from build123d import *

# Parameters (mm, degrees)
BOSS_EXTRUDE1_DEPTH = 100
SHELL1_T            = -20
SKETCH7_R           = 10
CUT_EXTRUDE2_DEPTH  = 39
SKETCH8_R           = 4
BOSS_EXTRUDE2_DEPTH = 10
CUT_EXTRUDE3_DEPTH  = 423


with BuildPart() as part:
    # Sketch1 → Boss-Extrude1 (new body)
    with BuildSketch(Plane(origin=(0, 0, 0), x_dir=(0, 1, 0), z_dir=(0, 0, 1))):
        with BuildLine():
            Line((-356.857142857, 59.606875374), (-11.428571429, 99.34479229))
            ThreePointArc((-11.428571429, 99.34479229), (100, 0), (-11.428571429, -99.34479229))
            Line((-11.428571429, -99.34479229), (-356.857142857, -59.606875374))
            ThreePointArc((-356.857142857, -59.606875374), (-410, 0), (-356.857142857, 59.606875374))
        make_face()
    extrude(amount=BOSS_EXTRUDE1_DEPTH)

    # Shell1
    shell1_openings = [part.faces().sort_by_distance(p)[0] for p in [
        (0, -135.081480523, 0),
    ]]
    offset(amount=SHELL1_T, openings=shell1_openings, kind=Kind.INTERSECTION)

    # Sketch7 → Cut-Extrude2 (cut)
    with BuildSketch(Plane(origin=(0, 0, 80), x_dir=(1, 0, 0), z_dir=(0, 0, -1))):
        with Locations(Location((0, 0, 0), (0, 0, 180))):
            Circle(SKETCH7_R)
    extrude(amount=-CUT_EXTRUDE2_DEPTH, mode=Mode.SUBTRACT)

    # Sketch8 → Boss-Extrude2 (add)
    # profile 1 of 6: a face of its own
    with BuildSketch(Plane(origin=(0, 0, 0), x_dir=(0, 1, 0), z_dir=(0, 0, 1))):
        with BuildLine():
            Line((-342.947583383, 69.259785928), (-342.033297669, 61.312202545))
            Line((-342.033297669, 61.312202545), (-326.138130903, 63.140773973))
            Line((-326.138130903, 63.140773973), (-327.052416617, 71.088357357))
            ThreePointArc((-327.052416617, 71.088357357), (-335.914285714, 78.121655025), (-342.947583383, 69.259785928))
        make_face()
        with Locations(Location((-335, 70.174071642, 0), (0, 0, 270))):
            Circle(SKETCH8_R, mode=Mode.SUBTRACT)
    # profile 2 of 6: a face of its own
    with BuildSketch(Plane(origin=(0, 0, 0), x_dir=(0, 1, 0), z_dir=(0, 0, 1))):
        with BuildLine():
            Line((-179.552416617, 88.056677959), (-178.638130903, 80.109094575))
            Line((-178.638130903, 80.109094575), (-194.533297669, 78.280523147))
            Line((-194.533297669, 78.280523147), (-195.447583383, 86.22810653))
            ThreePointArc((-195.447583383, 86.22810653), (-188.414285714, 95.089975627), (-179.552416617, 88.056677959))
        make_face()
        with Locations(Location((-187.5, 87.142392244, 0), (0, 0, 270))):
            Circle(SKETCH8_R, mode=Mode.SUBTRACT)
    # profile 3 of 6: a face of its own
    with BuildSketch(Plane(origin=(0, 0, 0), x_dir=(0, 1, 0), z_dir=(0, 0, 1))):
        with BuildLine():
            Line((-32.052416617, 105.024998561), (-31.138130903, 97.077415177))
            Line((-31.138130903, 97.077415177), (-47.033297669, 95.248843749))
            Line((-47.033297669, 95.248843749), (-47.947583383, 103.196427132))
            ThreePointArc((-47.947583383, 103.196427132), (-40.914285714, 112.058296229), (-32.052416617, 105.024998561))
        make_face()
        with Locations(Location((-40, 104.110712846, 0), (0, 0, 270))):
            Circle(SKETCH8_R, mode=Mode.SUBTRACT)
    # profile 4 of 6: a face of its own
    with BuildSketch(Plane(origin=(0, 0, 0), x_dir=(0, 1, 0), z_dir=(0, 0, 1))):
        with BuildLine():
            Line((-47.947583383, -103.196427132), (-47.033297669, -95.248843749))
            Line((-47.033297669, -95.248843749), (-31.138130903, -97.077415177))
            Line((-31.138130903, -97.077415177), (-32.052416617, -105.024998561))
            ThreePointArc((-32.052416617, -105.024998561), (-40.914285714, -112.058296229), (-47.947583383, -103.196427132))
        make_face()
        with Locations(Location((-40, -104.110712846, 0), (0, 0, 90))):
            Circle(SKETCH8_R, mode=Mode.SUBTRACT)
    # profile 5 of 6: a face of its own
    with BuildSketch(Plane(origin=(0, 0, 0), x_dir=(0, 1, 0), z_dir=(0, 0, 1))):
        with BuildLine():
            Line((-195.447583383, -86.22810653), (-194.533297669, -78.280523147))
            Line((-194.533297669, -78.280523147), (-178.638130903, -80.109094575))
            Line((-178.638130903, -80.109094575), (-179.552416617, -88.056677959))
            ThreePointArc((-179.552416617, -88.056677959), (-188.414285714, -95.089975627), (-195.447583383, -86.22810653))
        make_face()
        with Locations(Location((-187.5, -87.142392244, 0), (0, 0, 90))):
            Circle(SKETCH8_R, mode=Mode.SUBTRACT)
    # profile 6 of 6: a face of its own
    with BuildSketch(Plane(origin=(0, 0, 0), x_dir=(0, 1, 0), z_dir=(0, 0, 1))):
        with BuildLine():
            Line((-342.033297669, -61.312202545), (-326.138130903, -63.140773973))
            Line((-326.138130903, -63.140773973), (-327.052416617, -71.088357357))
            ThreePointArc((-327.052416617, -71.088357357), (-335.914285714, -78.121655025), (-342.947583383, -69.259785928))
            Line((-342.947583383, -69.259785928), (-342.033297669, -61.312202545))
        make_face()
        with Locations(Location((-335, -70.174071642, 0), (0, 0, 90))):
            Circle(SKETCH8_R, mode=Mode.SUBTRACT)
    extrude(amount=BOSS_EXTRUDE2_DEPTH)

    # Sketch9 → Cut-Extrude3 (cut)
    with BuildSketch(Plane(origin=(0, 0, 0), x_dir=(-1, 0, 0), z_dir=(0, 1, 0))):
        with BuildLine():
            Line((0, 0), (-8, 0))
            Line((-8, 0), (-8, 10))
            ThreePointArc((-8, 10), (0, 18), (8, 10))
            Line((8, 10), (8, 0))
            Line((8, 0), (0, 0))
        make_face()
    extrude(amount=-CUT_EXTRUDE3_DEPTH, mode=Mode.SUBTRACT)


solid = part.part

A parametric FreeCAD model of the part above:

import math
import FreeCAD as App
import Part
import Sketcher

V = App.Vector


def faces_at(feature, points):
    """Names of the faces that lie closest to the given points."""
    faces = feature.Shape.Faces
    near = lambda p: min(range(len(faces)), key=lambda i: faces[i].distToShape(Part.Vertex(*p))[0])
    return sorted({f"Face{near(p) + 1}" for p in points})

doc = App.newDocument("Part")
body = doc.addObject("PartDesign::Body", "Body")

sketch1 = body.newObject("Sketcher::SketchObject", "Sketch")
sketch1.AttachmentSupport = (doc.getObject("XY_Plane"), [""])
sketch1.MapMode = "FlatFace"
sketch1.addGeometry(Part.LineSegment(V(-99, -11, 0), V(-60, -357, 0)), False)
sketch1.addGeometry(Part.ArcOfCircle(Part.Circle(V(0, -350, 0), V(0, 0, 1), 60), math.radians(-173), math.radians(-7)), False)
sketch1.addGeometry(Part.LineSegment(V(60, -357, 0), V(99, -11, 0)), False)
sketch1.addGeometry(Part.ArcOfCircle(Part.Circle(V(0, 0, 0), V(0, 0, 1), 100), math.radians(-7), math.radians(187)), False)
sketch1.addConstraint(Sketcher.Constraint("Tangent", 0, 2, 1, 1))
sketch1.addConstraint(Sketcher.Constraint("Tangent", 1, 2, 2, 1))
sketch1.addConstraint(Sketcher.Constraint("Tangent", 2, 2, 3, 1))
sketch1.addConstraint(Sketcher.Constraint("Tangent", 3, 2, 0, 1))
sketch1.addConstraint(Sketcher.Constraint("Coincident", 3, 3, -1, 1))
sketch1.addConstraint(Sketcher.Constraint("PointOnObject", 1, 3, -2))
sketch1.addConstraint(Sketcher.Constraint("Radius", 1, 60.0))
sketch1.addConstraint(Sketcher.Constraint("Radius", 3, 100.0))
sketch1.addConstraint(Sketcher.Constraint("DistanceY", 1, 3, -1, 1, 350.0))
pad1 = body.newObject("PartDesign::Pad", "Pad")
pad1.Profile = sketch1
pad1.Length = 100
doc.recompute()

thickness = body.newObject("PartDesign::Thickness", "Thickness")
thickness.Base = (pad1, faces_at(pad1, [(0, -155, 0)]))
thickness.Value = 20
thickness.Reversed = True
thickness.Join = "Intersection"

sketch2 = body.newObject("Sketcher::SketchObject", "Sketch001")
sketch2.AttachmentSupport = (doc.getObject("XY_Plane"), [""])
sketch2.MapMode = "FlatFace"
sketch2.AttachmentOffset = App.Placement(V(0, 0, 80), App.Rotation())
sketch2.addGeometry(Part.Circle(V(0, 0, 0), V(0, 0, 1), 10), False)
sketch2.addConstraint(Sketcher.Constraint("Coincident", 0, 3, -1, 1))
sketch2.addConstraint(Sketcher.Constraint("Diameter", 0, 20.0))
pocket1 = body.newObject("PartDesign::Pocket", "Pocket")
pocket1.Profile = sketch2
pocket1.Length = 39
pocket1.Reversed = True

sketch3 = body.newObject("Sketcher::SketchObject", "Sketch002")
sketch3.AttachmentSupport = (doc.getObject("XY_Plane"), [""])
sketch3.MapMode = "FlatFace"
sketch3.addGeometry(Part.LineSegment(V(-69.3, -342.9, 0), V(-61.3, -342, 0)), False)
sketch3.addGeometry(Part.LineSegment(V(-61.3, -342, 0), V(-63.1, -326.1, 0)), False)
sketch3.addGeometry(Part.LineSegment(V(-63.1, -326.1, 0), V(-71.1, -327.1, 0)), False)
sketch3.addGeometry(Part.ArcOfCircle(Part.Circle(V(-70.2, -335, 0), V(0, 0, 1), 8), math.radians(97), math.radians(277)), False)
sketch3.addGeometry(Part.Circle(V(-70.2, -335, 0), V(0, 0, 1), 4), False)
sketch3.addGeometry(Part.LineSegment(V(-80.1, -178.6, 0), V(-88.1, -179.6, 0)), False)
sketch3.addGeometry(Part.ArcOfCircle(Part.Circle(V(-87.1, -187.5, 0), V(0, 0, 1), 8), math.radians(97), math.radians(277)), False)
sketch3.addGeometry(Part.LineSegment(V(-86.2, -195.4, 0), V(-78.3, -194.5, 0)), False)
sketch3.addGeometry(Part.LineSegment(V(-78.3, -194.5, 0), V(-80.1, -178.6, 0)), False)
sketch3.addGeometry(Part.Circle(V(-87.1, -187.5, 0), V(0, 0, 1), 4), False)
sketch3.addGeometry(Part.LineSegment(V(-97.1, -31.1, 0), V(-105, -32.1, 0)), False)
sketch3.addGeometry(Part.ArcOfCircle(Part.Circle(V(-104.1, -40, 0), V(0, 0, 1), 8), math.radians(97), math.radians(277)), False)
sketch3.addGeometry(Part.LineSegment(V(-103.2, -47.9, 0), V(-95.2, -47, 0)), False)
sketch3.addGeometry(Part.LineSegment(V(-95.2, -47, 0), V(-97.1, -31.1, 0)), False)
sketch3.addGeometry(Part.Circle(V(-104.1, -40, 0), V(0, 0, 1), 4), False)
sketch3.addGeometry(Part.LineSegment(V(95.2, -47, 0), V(103.2, -47.9, 0)), False)
sketch3.addGeometry(Part.ArcOfCircle(Part.Circle(V(104.1, -40, 0), V(0, 0, 1), 8), math.radians(-97), math.radians(83)), False)
sketch3.addGeometry(Part.LineSegment(V(105, -32.1, 0), V(97.1, -31.1, 0)), False)
sketch3.addGeometry(Part.LineSegment(V(97.1, -31.1, 0), V(95.2, -47, 0)), False)
sketch3.addGeometry(Part.Circle(V(104.1, -40, 0), V(0, 0, 1), 4), False)
sketch3.addGeometry(Part.LineSegment(V(78.3, -194.5, 0), V(86.2, -195.4, 0)), False)
sketch3.addGeometry(Part.ArcOfCircle(Part.Circle(V(87.1, -187.5, 0), V(0, 0, 1), 8), math.radians(-97), math.radians(83)), False)
sketch3.addGeometry(Part.LineSegment(V(88.1, -179.6, 0), V(80.1, -178.6, 0)), False)
sketch3.addGeometry(Part.LineSegment(V(80.1, -178.6, 0), V(78.3, -194.5, 0)), False)
sketch3.addGeometry(Part.Circle(V(87.1, -187.5, 0), V(0, 0, 1), 4), False)
sketch3.addGeometry(Part.LineSegment(V(63.1, -326.1, 0), V(61.3, -342, 0)), False)
sketch3.addGeometry(Part.LineSegment(V(61.3, -342, 0), V(69.3, -342.9, 0)), False)
sketch3.addGeometry(Part.ArcOfCircle(Part.Circle(V(70.2, -335, 0), V(0, 0, 1), 8), math.radians(-97), math.radians(83)), False)
sketch3.addGeometry(Part.LineSegment(V(71.1, -327.1, 0), V(63.1, -326.1, 0)), False)
sketch3.addGeometry(Part.Circle(V(70.2, -335, 0), V(0, 0, 1), 4), False)
sketch3.addConstraint(Sketcher.Constraint("Coincident", 0, 2, 1, 1))
sketch3.addConstraint(Sketcher.Constraint("Coincident", 1, 2, 2, 1))
sketch3.addConstraint(Sketcher.Constraint("Tangent", 2, 2, 3, 1))
sketch3.addConstraint(Sketcher.Constraint("Tangent", 3, 2, 0, 1))
sketch3.addConstraint(Sketcher.Constraint("Tangent", 5, 2, 6, 1))
sketch3.addConstraint(Sketcher.Constraint("Tangent", 6, 2, 7, 1))
sketch3.addConstraint(Sketcher.Constraint("Coincident", 7, 2, 8, 1))
sketch3.addConstraint(Sketcher.Constraint("Coincident", 8, 2, 5, 1))
sketch3.addConstraint(Sketcher.Constraint("Tangent", 10, 2, 11, 1))
sketch3.addConstraint(Sketcher.Constraint("Tangent", 11, 2, 12, 1))
sketch3.addConstraint(Sketcher.Constraint("Coincident", 12, 2, 13, 1))
sketch3.addConstraint(Sketcher.Constraint("Coincident", 13, 2, 10, 1))
sketch3.addConstraint(Sketcher.Constraint("Tangent", 15, 2, 16, 1))
sketch3.addConstraint(Sketcher.Constraint("Tangent", 16, 2, 17, 1))
sketch3.addConstraint(Sketcher.Constraint("Coincident", 17, 2, 18, 1))
sketch3.addConstraint(Sketcher.Constraint("Coincident", 18, 2, 15, 1))
sketch3.addConstraint(Sketcher.Constraint("Tangent", 20, 2, 21, 1))
sketch3.addConstraint(Sketcher.Constraint("Tangent", 21, 2, 22, 1))
sketch3.addConstraint(Sketcher.Constraint("Coincident", 22, 2, 23, 1))
sketch3.addConstraint(Sketcher.Constraint("Coincident", 23, 2, 20, 1))
sketch3.addConstraint(Sketcher.Constraint("Coincident", 25, 2, 26, 1))
sketch3.addConstraint(Sketcher.Constraint("Tangent", 26, 2, 27, 1))
sketch3.addConstraint(Sketcher.Constraint("Tangent", 27, 2, 28, 1))
sketch3.addConstraint(Sketcher.Constraint("Coincident", 28, 2, 25, 1))
sketch3.addConstraint(Sketcher.Constraint("Coincident", 4, 3, 3, 3))
sketch3.addConstraint(Sketcher.Constraint("Coincident", 9, 3, 6, 3))
sketch3.addConstraint(Sketcher.Constraint("Coincident", 14, 3, 11, 3))
sketch3.addConstraint(Sketcher.Constraint("Coincident", 19, 3, 16, 3))
sketch3.addConstraint(Sketcher.Constraint("Coincident", 24, 3, 21, 3))
sketch3.addConstraint(Sketcher.Constraint("Coincident", 29, 3, 27, 3))
sketch3.addConstraint(Sketcher.Constraint("Equal", 3, 6))
sketch3.addConstraint(Sketcher.Constraint("Equal", 4, 9))
sketch3.addConstraint(Sketcher.Constraint("Equal", 6, 11))
sketch3.addConstraint(Sketcher.Constraint("Equal", 9, 14))
sketch3.addConstraint(Sketcher.Constraint("Equal", 11, 16))
sketch3.addConstraint(Sketcher.Constraint("Equal", 14, 19))
sketch3.addConstraint(Sketcher.Constraint("Equal", 16, 21))
sketch3.addConstraint(Sketcher.Constraint("Equal", 19, 24))
sketch3.addConstraint(Sketcher.Constraint("Equal", 21, 27))
sketch3.addConstraint(Sketcher.Constraint("Equal", 24, 29))
sketch3.addConstraint(Sketcher.Constraint("Symmetric", 11, 3, 16, 3, -2))
sketch3.addConstraint(Sketcher.Constraint("Symmetric", 6, 3, 21, 3, -2))
sketch3.addConstraint(Sketcher.Constraint("Symmetric", 3, 3, 27, 3, -2))
sketch3.addConstraint(Sketcher.Constraint("Symmetric", 13, 2, 17, 2, -2))
sketch3.addConstraint(Sketcher.Constraint("Symmetric", 12, 2, 18, 2, -2))
sketch3.addConstraint(Sketcher.Constraint("Symmetric", 8, 2, 22, 2, -2))
sketch3.addConstraint(Sketcher.Constraint("Symmetric", 7, 2, 23, 2, -2))
sketch3.addConstraint(Sketcher.Constraint("Symmetric", 0, 2, 25, 2, -2))
sketch3.addConstraint(Sketcher.Constraint("Symmetric", 1, 2, 28, 2, -2))
sketch3.addConstraint(Sketcher.Constraint("Perpendicular", 0, 1))
sketch3.addConstraint(Sketcher.Constraint("Perpendicular", 1, 2))
sketch3.addConstraint(Sketcher.Constraint("Parallel", 2, 5))
sketch3.addConstraint(Sketcher.Constraint("Parallel", 5, 7))
sketch3.addConstraint(Sketcher.Constraint("Perpendicular", 7, 8))
sketch3.addConstraint(Sketcher.Constraint("Perpendicular", 8, 10))
sketch3.addConstraint(Sketcher.Constraint("Parallel", 10, 12))
sketch3.addConstraint(Sketcher.Constraint("Perpendicular", 12, 13))
sketch3.addConstraint(Sketcher.Constraint("Equal", 2, 5))
sketch3.addConstraint(Sketcher.Constraint("Equal", 7, 10))
sketch3.addConstraint(Sketcher.Constraint("Diameter", 4, 8.0))
sketch3.addConstraint(Sketcher.Constraint("Radius", 3, 8.0))
sketch3.addConstraint(Sketcher.Constraint("Distance", 0, 8.0))
sketch3.addConstraint(Sketcher.Constraint("DistanceY", 3, 3, -1, 1, 335.0))
sketch3.addConstraint(Sketcher.Constraint("DistanceY", 11, 3, -1, 1, 40.0))
sketch3.addConstraint(Sketcher.Constraint("DistanceY", 6, 3, -1, 1, 187.5))
sketch3.addConstraint(Sketcher.Constraint("DistanceX", 10, 2, -1, 1, 105.024999))
sketch3.addConstraint(Sketcher.Constraint("DistanceX", 3, 3, -1, 1, 70.174072))
sketch3.addConstraint(Sketcher.Constraint("DistanceY", 1, 2, -1, 1, 326.138131))
sketch3.addConstraint(Sketcher.Constraint("DistanceX", 6, 3, 3, 3, 16.968321))
pad2 = body.newObject("PartDesign::Pad", "Pad001")
pad2.Profile = sketch3
pad2.Length = 10

sketch4 = body.newObject("Sketcher::SketchObject", "Sketch003")
sketch4.AttachmentSupport = (doc.getObject("XZ_Plane"), [""])
sketch4.MapMode = "FlatFace"
sketch4.addGeometry(Part.LineSegment(V(8, 10, 0), V(8, 0, 0)), False)
sketch4.addGeometry(Part.LineSegment(V(8, 0, 0), V(-8, 0, 0)), False)
sketch4.addGeometry(Part.LineSegment(V(-8, 0, 0), V(-8, 10, 0)), False)
sketch4.addGeometry(Part.ArcOfCircle(Part.Circle(V(0, 10, 0), V(0, 0, 1), 8), math.radians(0), math.radians(180)), False)
sketch4.addConstraint(Sketcher.Constraint("Coincident", 0, 2, 1, 1))
sketch4.addConstraint(Sketcher.Constraint("Coincident", 1, 2, 2, 1))
sketch4.addConstraint(Sketcher.Constraint("Tangent", 2, 2, 3, 2))
sketch4.addConstraint(Sketcher.Constraint("Tangent", 3, 1, 0, 1))
sketch4.addConstraint(Sketcher.Constraint("Vertical", 0))
sketch4.addConstraint(Sketcher.Constraint("Horizontal", 1))
sketch4.addConstraint(Sketcher.Constraint("Vertical", 2))
sketch4.addConstraint(Sketcher.Constraint("Symmetric", 0, 2, 1, 2, -1, 1))
sketch4.addConstraint(Sketcher.Constraint("Radius", 3, 8.0))
sketch4.addConstraint(Sketcher.Constraint("DistanceY", 0, 2, 0, 1, 10.0))
pocket2 = body.newObject("PartDesign::Pocket", "Pocket001")
pocket2.Profile = sketch4
pocket2.Length = 423
pocket2.Reversed = True

doc.recompute()
